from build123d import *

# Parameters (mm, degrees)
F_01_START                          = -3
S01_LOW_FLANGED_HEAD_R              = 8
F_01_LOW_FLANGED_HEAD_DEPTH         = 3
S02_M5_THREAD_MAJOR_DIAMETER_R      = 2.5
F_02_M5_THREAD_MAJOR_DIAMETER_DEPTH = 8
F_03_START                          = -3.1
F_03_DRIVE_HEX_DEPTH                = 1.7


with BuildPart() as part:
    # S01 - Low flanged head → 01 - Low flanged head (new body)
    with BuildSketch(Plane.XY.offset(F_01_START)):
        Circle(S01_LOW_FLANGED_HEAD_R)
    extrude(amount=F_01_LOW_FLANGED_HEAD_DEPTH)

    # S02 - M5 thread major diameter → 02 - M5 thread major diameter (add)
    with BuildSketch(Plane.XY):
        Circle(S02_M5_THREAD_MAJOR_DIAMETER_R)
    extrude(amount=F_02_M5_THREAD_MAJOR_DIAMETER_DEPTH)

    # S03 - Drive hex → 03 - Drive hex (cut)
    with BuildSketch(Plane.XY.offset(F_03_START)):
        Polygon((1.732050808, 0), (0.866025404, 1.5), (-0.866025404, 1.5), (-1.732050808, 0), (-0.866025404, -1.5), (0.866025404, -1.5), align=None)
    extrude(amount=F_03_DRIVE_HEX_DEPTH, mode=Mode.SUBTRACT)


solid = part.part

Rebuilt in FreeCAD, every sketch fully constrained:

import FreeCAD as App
import Part
import Sketcher
from FreeCAD import Vector
Q = App.Units.Quantity


def add_polygon(sketch, points):
    """Adds a closed chain of lines whose ends are joined by coincident constraints."""
    first, n = sketch.GeometryCount, len(points)
    for a, b in zip(points, points[1:] + points[:1]):
        sketch.addGeometry(Part.LineSegment(App.Vector(*a, 0), App.Vector(*b, 0)), False)
    for i in range(n):
        sketch.addConstraint(Sketcher.Constraint("Coincident", first + i, 2, first + (i + 1) % n, 1))

doc = App.newDocument("Part")
body = doc.addObject("PartDesign::Body", "Body")

# Sketch on XY plane
sketch1 = body.newObject("Sketcher::SketchObject", "Sketch")
sketch1.AttachmentSupport = (doc.getObject("XY_Plane"), [""])
sketch1.MapMode = "FlatFace"
sketch1.AttachmentOffset = App.Placement(Vector(0, 0, -3), App.Rotation())
sketch1.addGeometry(Part.Circle(Vector(0, 0, 0), Vector(0, 0, 1), 8), False)
sketch1.addConstraint(Sketcher.Constraint("Coincident", 0, 3, -1, 1))
sketch1.addConstraint(Sketcher.Constraint("Diameter", 0, 16.0))
pad1 = body.newObject("PartDesign::Pad", "Pad")
pad1.Profile = sketch1
pad1.Length = 3

# Sketch on XY plane
sketch2 = body.newObject("Sketcher::SketchObject", "Sketch001")
sketch2.AttachmentSupport = (doc.getObject("XY_Plane"), [""])
sketch2.MapMode = "FlatFace"
sketch2.addGeometry(Part.Circle(Vector(0, 0, 0), Vector(0, 0, 1), 2.5), False)
sketch2.addConstraint(Sketcher.Constraint("Coincident", 0, 3, -1, 1))
sketch2.addConstraint(Sketcher.Constraint("Diameter", 0, 5.0))
pad2 = body.newObject("PartDesign::Pad", "Pad001")
pad2.Profile = sketch2
pad2.Length = 8

# Sketch on XY plane
sketch3 = body.newObject("Sketcher::SketchObject", "Sketch002")
sketch3.AttachmentSupport = (doc.getObject("XY_Plane"), [""])
sketch3.MapMode = "FlatFace"
sketch3.AttachmentOffset = App.Placement(Vector(0, 0, -3.1), App.Rotation())
add_polygon(sketch3, [(1.7, 0), (0.9, 1.5), (-0.9, 1.5), (-1.7, 0), (-0.9, -1.5), (0.9, -1.5)])  # lines 0-5
sketch3.addConstraint(Sketcher.Constraint("Horizontal", 1))
sketch3.addConstraint(Sketcher.Constraint("Horizontal", 4))
sketch3.addConstraint(Sketcher.Constraint("Symmetric", 0, 2, 3, 2, -1, 1))
sketch3.addConstraint(Sketcher.Constraint("Symmetric", 2, 2, 5, 2, -1, 1))
sketch3.addConstraint(Sketcher.Constraint("PointOnObject", 2, 2, -1))
sketch3.addConstraint(Sketcher.Constraint("Parallel", 2, 5))
sketch3.addConstraint(Sketcher.Constraint("Vertical", 1, 2, 3, 2))
sketch3.addConstraint(Sketcher.Constraint("Angle", 0, Q("120 deg")))
sketch3.addConstraint(Sketcher.Constraint("DistanceY", 3, 2, 1, 2, 3.0))
sketch3.addConstraint(Sketcher.Constraint("DistanceX", 1, 2, 1, 1, 1.732051))
pocket1 = body.newObject("PartDesign::Pocket", "Pocket")
pocket1.Profile = sketch3
pocket1.Length = 1.7
pocket1.Reversed = True

doc.recompute()
